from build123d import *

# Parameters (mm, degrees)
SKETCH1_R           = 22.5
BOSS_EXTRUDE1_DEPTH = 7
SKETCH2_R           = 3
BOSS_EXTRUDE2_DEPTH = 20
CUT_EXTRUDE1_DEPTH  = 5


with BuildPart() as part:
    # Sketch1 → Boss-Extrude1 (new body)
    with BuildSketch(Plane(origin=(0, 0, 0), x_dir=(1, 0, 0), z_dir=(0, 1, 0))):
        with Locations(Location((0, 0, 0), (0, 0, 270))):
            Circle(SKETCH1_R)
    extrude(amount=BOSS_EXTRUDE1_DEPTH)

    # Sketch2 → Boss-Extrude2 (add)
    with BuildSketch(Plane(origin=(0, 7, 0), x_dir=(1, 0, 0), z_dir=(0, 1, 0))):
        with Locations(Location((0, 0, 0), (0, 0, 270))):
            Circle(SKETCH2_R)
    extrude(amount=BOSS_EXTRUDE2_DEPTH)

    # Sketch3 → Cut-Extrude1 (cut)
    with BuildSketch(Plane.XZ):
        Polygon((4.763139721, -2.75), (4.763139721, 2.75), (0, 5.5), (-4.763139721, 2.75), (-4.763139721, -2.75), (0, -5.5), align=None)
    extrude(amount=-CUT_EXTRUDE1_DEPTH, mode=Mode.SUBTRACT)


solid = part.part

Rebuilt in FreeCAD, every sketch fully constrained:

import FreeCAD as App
import Part
import Sketcher
Q = App.Units.Quantity

doc = App.newDocument("Part")
params = doc.addObject("Spreadsheet::Sheet", "Params")
for row, (alias, value) in enumerate([
    ("sketch1_diameter", "45 mm"),
    ("pad1_length", "7 mm"),
    ("sketch2_diameter", "6 mm"),
    ("pad2_length", "20 mm"),
    ("sketch3_height", "5.5 mm"),
    ("pocket1_length", "5 mm"),
], start=1):
    params.set(f"A{row}", alias)
    params.set(f"B{row}", "=" + value)
    params.setAlias(f"B{row}", alias)

body = doc.addObject("PartDesign::Body", "Body")

# Sketch on XZ plane
sketch1 = body.newObject("Sketcher::SketchObject", "Sketch")
sketch1.AttachmentSupport = (doc.getObject("XZ_Plane"), [""])
sketch1.MapMode = "FlatFace"
sketch1.addGeometry(Part.Circle(App.Vector(0, 0, 0), App.Vector(0, 0, 1), 22), False)
sketch1.addConstraint(Sketcher.Constraint("Coincident", 0, 3, -1, 1))
sketch1.addConstraint(Sketcher.Constraint("Diameter", 0, Q("45 mm")))
sketch1.setExpression("Constraints[1]", "Params.sketch1_diameter")
pad1 = body.newObject("PartDesign::Pad", "Pad")
pad1.Profile = sketch1
pad1.setExpression("Length", "Params.pad1_length")
pad1.Reversed = True

# Sketch on XZ plane
sketch2 = body.newObject("Sketcher::SketchObject", "Sketch001")
sketch2.AttachmentSupport = (doc.getObject("XZ_Plane"), [""])
sketch2.MapMode = "FlatFace"
sketch2.AttachmentOffset = App.Placement(App.Vector(0, 0, -7), App.Rotation())
sketch2.addGeometry(Part.Circle(App.Vector(0, 0, 0), App.Vector(0, 0, 1), 3), False)
sketch2.addConstraint(Sketcher.Constraint("Coincident", 0, 3, -1, 1))
sketch2.addConstraint(Sketcher.Constraint("Diameter", 0, Q("6 mm")))
sketch2.setExpression("Constraints[1]", "Params.sketch2_diameter")
pad2 = body.newObject("PartDesign::Pad", "Pad001")
pad2.Profile = sketch2
pad2.setExpression("Length", "Params.pad2_length")
pad2.Reversed = True

# Sketch on XZ plane
sketch3 = body.newObject("Sketcher::SketchObject", "Sketch002")
sketch3.AttachmentSupport = (doc.getObject("XZ_Plane"), [""])
sketch3.MapMode = "FlatFace"
sketch3.addGeometry(Part.LineSegment(App.Vector(5, -3, 0), App.Vector(5, 3, 0)), False)
sketch3.addGeometry(Part.LineSegment(App.Vector(5, 3, 0), App.Vector(0, 6, 0)), False)
sketch3.addGeometry(Part.LineSegment(App.Vector(0, 6, 0), App.Vector(-5, 3, 0)), False)
sketch3.addGeometry(Part.LineSegment(App.Vector(-5, 3, 0), App.Vector(-5, -3, 0)), False)
sketch3.addGeometry(Part.LineSegment(App.Vector(-5, -3, 0), App.Vector(0, -6, 0)), False)
sketch3.addGeometry(Part.LineSegment(App.Vector(0, -6, 0), App.Vector(5, -3, 0)), False)
sketch3.addConstraint(Sketcher.Constraint("Coincident", 0, 2, 1, 1))
sketch3.addConstraint(Sketcher.Constraint("Coincident", 1, 2, 2, 1))
sketch3.addConstraint(Sketcher.Constraint("Coincident", 2, 2, 3, 1))
sketch3.addConstraint(Sketcher.Constraint("Coincident", 3, 2, 4, 1))
sketch3.addConstraint(Sketcher.Constraint("Coincident", 4, 2, 5, 1))
sketch3.addConstraint(Sketcher.Constraint("Coincident", 5, 2, 0, 1))
sketch3.addConstraint(Sketcher.Constraint("Vertical", 0))
sketch3.addConstraint(Sketcher.Constraint("Vertical", 3))
sketch3.addConstraint(Sketcher.Constraint("Symmetric", 0, 2, 3, 2, -1, 1))
sketch3.addConstraint(Sketcher.Constraint("Symmetric", 1, 2, 4, 2, -1, 1))
sketch3.addConstraint(Sketcher.Constraint("PointOnObject", 1, 2, -2))
sketch3.addConstraint(Sketcher.Constraint("Parallel", 2, 5))
sketch3.addConstraint(Sketcher.Constraint("Horizontal", 0, 2, 2, 2))
sketch3.addConstraint(Sketcher.Constraint("Angle", 1, Q("150 deg")))
sketch3.addConstraint(Sketcher.Constraint("DistanceY", 0, 1, 0, 2, Q("5.5 mm")))
sketch3.addConstraint(Sketcher.Constraint("DistanceY", 4, 2, 1, 2, Q("11 mm")))
sketch3.setExpression("Constraints[14]", "Params.sketch3_height")
pocket1 = body.newObject("PartDesign::Pocket", "Pocket")
pocket1.Profile = sketch3
pocket1.setExpression("Length", "Params.pocket1_length")

doc.recompute()
